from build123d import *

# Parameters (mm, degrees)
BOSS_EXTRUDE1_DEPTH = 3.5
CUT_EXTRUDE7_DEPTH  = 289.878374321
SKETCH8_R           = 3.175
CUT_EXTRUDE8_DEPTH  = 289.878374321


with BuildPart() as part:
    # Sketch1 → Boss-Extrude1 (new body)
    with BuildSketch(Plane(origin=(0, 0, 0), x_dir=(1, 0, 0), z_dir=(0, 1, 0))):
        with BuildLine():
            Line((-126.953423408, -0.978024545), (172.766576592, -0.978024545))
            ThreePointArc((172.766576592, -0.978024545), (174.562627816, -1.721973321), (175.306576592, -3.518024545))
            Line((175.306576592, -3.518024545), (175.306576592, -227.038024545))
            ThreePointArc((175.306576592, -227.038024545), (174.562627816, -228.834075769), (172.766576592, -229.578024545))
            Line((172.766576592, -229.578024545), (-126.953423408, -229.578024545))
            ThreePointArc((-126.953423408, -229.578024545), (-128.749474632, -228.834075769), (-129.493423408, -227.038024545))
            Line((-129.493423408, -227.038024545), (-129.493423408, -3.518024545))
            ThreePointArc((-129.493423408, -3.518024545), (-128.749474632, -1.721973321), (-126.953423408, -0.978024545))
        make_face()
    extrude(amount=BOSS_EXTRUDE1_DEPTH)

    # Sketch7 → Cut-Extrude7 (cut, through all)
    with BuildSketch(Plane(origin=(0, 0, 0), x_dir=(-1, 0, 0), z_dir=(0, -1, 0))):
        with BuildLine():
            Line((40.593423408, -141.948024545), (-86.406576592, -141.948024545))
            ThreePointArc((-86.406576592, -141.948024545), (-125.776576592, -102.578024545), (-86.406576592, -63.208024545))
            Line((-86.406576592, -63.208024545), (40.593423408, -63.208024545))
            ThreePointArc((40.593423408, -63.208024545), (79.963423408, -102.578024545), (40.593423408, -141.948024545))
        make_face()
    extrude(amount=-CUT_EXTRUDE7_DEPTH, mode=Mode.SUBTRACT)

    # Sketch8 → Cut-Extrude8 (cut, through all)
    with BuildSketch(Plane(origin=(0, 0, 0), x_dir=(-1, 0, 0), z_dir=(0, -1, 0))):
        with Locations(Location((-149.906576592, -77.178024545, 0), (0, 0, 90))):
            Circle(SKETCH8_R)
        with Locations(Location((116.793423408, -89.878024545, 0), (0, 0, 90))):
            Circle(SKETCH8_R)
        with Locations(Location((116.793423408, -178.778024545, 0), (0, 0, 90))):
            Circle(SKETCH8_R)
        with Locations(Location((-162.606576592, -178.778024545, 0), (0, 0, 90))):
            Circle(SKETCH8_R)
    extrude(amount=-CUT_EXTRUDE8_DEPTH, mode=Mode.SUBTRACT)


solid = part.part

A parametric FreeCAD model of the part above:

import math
import FreeCAD as App
import Part
import Sketcher
Q = App.Units.Quantity

doc = App.newDocument("Part")
body = doc.addObject("PartDesign::Body", "Body")

# Sketch on XZ plane
sketch1 = body.newObject("Sketcher::SketchObject", "Sketch")
sketch1.AttachmentSupport = (doc.getObject("XZ_Plane"), [""])
sketch1.MapMode = "FlatFace"
sketch1.addGeometry([
    Part.LineSegment(App.Vector(172.8, 1, 0), App.Vector(-127, 1, 0)),  # 0
    Part.ArcOfCircle(Part.Circle(App.Vector(-127, 3.5, 0), App.Vector(0, 0, 1), 2.5), math.radians(-180), math.radians(-90)),  # 1
    Part.LineSegment(App.Vector(-129.5, 3.5, 0), App.Vector(-129.5, 227, 0)),  # 2
    Part.ArcOfCircle(Part.Circle(App.Vector(-127, 227, 0), App.Vector(0, 0, 1), 2.5), math.radians(90), math.radians(180)),  # 3
    Part.LineSegment(App.Vector(-127, 229.6, 0), App.Vector(172.8, 229.6, 0)),  # 4
    Part.ArcOfCircle(Part.Circle(App.Vector(172.8, 227, 0), App.Vector(0, 0, 1), 2.5), math.radians(0), math.radians(90)),  # 5
    Part.LineSegment(App.Vector(175.3, 227, 0), App.Vector(175.3, 3.5, 0)),  # 6
    Part.ArcOfCircle(Part.Circle(App.Vector(172.8, 3.5, 0), App.Vector(0, 0, 1), 2.5), math.radians(-90), math.radians(0)),  # 7
], False)
sketch1.addConstraint([
    Sketcher.Constraint("Tangent", 0, 2, 1, 2),
    Sketcher.Constraint("Tangent", 1, 1, 2, 1),
    Sketcher.Constraint("Tangent", 2, 2, 3, 2),
    Sketcher.Constraint("Tangent", 3, 1, 4, 1),
    Sketcher.Constraint("Tangent", 4, 2, 5, 2),
    Sketcher.Constraint("Tangent", 5, 1, 6, 1),
    Sketcher.Constraint("Tangent", 6, 2, 7, 2),
    Sketcher.Constraint("Tangent", 7, 1, 0, 1),
    Sketcher.Constraint("Horizontal", 0),
    Sketcher.Constraint("Vertical", 2),
    Sketcher.Constraint("Horizontal", 4),
    Sketcher.Constraint("Vertical", 6),
    Sketcher.Constraint("Equal", 1, 3),
    Sketcher.Constraint("Equal", 3, 5),
    Sketcher.Constraint("Equal", 5, 7),
    Sketcher.Constraint("Radius", 1, Q("0.1 in")),
    Sketcher.Constraint("DistanceX", 0, 2, 0, 1, Q("11.8 in")),
    Sketcher.Constraint("DistanceY", 2, 1, 2, 2, Q("8.8 in")),
    Sketcher.Constraint("DistanceX", 1, 3, -1, 1, Q("126.953423 mm")),
    Sketcher.Constraint("DistanceY", -1, 1, 1, 3, Q("3.518025 mm")),
])
pad1 = body.newObject("PartDesign::Pad", "Pad")
pad1.Profile = sketch1
pad1.Length = 3.5
pad1.Reversed = True

# Sketch on XZ plane
sketch2 = body.newObject("Sketcher::SketchObject", "Sketch001")
sketch2.AttachmentSupport = (doc.getObject("XZ_Plane"), [""])
sketch2.MapMode = "FlatFace"
sketch2.addGeometry([
    Part.LineSegment(App.Vector(86, 142, 0), App.Vector(-41, 142, 0)),
    Part.ArcOfCircle(Part.Circle(App.Vector(-41, 103, 0), App.Vector(0, 0, 1), 39), math.radians(90), math.radians(270)),
    Part.LineSegment(App.Vector(-41, 63, 0), App.Vector(86, 63, 0)),
    Part.ArcOfCircle(Part.Circle(App.Vector(86, 103, 0), App.Vector(0, 0, 1), 39), math.radians(-90), math.radians(90)),
], False)
sketch2.addConstraint([
    Sketcher.Constraint("Tangent", 0, 2, 1, 1),
    Sketcher.Constraint("Tangent", 1, 2, 2, 1),
    Sketcher.Constraint("Tangent", 2, 2, 3, 1),
    Sketcher.Constraint("Tangent", 3, 2, 0, 1),
    Sketcher.Constraint("Horizontal", 0),
    Sketcher.Constraint("Horizontal", 2),
    Sketcher.Constraint("DistanceX", 0, 2, 0, 1, Q("5 in")),
    Sketcher.Constraint("Radius", 1, Q("1.55 in")),
    Sketcher.Constraint("DistanceX", 1, 3, -1, 1, Q("40.593423 mm")),
    Sketcher.Constraint("DistanceY", -1, 1, 1, 3, Q("102.578025 mm")),
])
pocket1 = body.newObject("PartDesign::Pocket", "Pocket")
pocket1.Profile = sketch2
pocket1.Type = "ThroughAll"

# Sketch on XZ plane
sketch3 = body.newObject("Sketcher::SketchObject", "Sketch002")
sketch3.AttachmentSupport = (doc.getObject("XZ_Plane"), [""])
sketch3.MapMode = "FlatFace"
sketch3.addGeometry([
    Part.Circle(App.Vector(149.9, 77.2, 0), App.Vector(0, 0, 1), 3.2),
    Part.Circle(App.Vector(-116.8, 89.9, 0), App.Vector(0, 0, 1), 3.2),
    Part.Circle(App.Vector(-116.8, 178.8, 0), App.Vector(0, 0, 1), 3.2),
    Part.Circle(App.Vector(162.6, 178.8, 0), App.Vector(0, 0, 1), 3.2),
], False)
sketch3.addConstraint([
    Sketcher.Constraint("Equal", 0, 1),
    Sketcher.Constraint("Equal", 1, 2),
    Sketcher.Constraint("Equal", 2, 3),
    Sketcher.Constraint("Horizontal", 2, 3, 3, 3),
    Sketcher.Constraint("Vertical", 1, 3, 2, 3),
    Sketcher.Constraint("Diameter", 0, Q("0.25 in")),
    Sketcher.Constraint("DistanceY", 0, 3, 2, 3, Q("4 in")),
    Sketcher.Constraint("DistanceX", 2, 3, 3, 3, Q("11 in")),
    Sketcher.Constraint("DistanceX", 1, 3, 0, 3, Q("10.5 in")),
    Sketcher.Constraint("DistanceY", 0, 3, 1, 3, Q("0.5 in")),
    Sketcher.Constraint("DistanceX", -1, 1, 0, 3, Q("149.906577 mm")),
    Sketcher.Constraint("DistanceY", -1, 1, 0, 3, Q("77.178025 mm")),
])
pocket2 = body.newObject("PartDesign::Pocket", "Pocket001")
pocket2.Profile = sketch3
pocket2.Type = "ThroughAll"

doc.recompute()
